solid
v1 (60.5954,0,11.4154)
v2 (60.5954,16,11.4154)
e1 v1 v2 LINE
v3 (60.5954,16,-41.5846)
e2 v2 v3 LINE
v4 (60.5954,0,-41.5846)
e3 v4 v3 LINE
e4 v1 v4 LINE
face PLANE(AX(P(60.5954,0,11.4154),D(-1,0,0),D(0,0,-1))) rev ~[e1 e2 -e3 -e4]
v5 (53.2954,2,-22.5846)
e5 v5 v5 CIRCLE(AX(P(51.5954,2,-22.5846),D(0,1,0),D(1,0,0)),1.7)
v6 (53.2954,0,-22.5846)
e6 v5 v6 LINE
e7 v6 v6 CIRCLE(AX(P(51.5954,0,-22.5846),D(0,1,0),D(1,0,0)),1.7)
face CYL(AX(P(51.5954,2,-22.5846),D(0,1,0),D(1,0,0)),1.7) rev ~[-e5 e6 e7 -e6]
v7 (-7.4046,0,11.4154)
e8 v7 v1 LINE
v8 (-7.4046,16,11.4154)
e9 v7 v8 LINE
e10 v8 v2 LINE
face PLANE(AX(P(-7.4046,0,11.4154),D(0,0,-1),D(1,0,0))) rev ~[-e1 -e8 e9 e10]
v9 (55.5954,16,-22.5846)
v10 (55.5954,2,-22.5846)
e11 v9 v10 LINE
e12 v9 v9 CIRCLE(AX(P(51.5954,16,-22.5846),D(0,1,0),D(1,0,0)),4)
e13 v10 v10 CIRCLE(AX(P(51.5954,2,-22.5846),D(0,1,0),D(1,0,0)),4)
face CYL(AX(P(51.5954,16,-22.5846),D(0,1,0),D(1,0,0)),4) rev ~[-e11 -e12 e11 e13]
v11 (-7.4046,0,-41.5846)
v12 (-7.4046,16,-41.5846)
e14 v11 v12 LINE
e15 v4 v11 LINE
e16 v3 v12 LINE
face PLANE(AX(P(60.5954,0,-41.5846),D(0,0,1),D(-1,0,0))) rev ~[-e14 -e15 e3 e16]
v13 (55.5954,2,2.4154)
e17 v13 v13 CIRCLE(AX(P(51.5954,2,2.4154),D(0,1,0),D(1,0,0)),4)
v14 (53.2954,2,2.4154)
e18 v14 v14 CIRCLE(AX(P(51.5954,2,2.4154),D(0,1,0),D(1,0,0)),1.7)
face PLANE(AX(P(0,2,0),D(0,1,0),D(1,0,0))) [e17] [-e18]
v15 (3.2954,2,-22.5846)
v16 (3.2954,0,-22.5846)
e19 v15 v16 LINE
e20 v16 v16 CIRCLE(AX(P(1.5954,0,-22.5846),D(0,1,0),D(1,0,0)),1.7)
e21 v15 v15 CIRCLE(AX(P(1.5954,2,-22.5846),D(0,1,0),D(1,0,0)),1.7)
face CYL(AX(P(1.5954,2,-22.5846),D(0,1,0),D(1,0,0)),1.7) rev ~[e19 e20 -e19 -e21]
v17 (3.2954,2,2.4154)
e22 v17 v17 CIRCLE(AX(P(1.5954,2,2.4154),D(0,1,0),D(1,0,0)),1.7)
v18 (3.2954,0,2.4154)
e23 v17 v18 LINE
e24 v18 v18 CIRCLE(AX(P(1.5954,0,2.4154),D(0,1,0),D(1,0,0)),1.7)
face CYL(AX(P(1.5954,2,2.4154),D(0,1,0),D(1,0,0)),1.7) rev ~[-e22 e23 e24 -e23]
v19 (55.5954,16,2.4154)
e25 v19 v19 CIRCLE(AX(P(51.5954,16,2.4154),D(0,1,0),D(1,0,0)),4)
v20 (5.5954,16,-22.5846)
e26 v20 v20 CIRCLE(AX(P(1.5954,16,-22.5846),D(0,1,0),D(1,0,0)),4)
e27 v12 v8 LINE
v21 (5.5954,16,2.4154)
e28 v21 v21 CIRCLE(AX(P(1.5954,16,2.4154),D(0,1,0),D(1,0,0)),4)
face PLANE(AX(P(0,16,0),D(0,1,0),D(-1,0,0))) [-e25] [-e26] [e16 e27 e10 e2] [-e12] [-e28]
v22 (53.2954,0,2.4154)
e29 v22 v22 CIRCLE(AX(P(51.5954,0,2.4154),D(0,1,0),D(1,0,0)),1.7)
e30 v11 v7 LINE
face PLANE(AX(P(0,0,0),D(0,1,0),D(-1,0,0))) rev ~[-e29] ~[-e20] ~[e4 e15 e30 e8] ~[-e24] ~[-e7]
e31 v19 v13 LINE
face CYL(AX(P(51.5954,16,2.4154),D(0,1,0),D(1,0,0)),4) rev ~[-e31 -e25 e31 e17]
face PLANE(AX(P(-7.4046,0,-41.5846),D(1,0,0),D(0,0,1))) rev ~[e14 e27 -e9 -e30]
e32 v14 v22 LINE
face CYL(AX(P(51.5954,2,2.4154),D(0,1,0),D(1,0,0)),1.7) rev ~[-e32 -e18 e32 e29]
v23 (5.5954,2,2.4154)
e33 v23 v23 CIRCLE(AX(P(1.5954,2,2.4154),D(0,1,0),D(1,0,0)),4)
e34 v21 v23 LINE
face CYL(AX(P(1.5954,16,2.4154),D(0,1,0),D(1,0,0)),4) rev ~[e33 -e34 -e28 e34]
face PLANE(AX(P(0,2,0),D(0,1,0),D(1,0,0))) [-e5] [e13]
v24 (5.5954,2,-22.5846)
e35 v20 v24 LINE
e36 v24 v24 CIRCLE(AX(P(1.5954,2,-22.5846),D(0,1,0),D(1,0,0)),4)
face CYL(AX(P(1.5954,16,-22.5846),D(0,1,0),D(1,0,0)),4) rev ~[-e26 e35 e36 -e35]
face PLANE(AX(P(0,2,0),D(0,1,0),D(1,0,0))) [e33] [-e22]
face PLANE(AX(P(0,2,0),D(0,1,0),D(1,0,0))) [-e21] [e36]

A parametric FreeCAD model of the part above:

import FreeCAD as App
import Part
import Sketcher


def add_polygon(sketch, points):
    """Adds a closed chain of lines whose ends are joined by coincident constraints."""
    first, n = sketch.GeometryCount, len(points)
    for a, b in zip(points, points[1:] + points[:1]):
        sketch.addGeometry(Part.LineSegment(App.Vector(*a, 0), App.Vector(*b, 0)), False)
    for i in range(n):
        sketch.addConstraint(Sketcher.Constraint("Coincident", first + i, 2, first + (i + 1) % n, 1))

doc = App.newDocument("Part")
body = doc.addObject("PartDesign::Body", "Body")

sketch1 = body.newObject("Sketcher::SketchObject", "Sketch")
sketch1.AttachmentSupport = (doc.getObject("XZ_Plane"), [""])
sketch1.MapMode = "FlatFace"
add_polygon(sketch1, [(-7, -42), (-7, 11), (61, 11), (61, -42)])
sketch1.addConstraint([
    Sketcher.Constraint("Vertical", 0),
    Sketcher.Constraint("Horizontal", 1),
    Sketcher.Constraint("Vertical", 2),
    Sketcher.Constraint("Horizontal", 3),
    Sketcher.Constraint("DistanceX", 1, 1, 1, 2, 68.0),
    Sketcher.Constraint("DistanceY", 0, 1, 0, 2, 53.0),
    Sketcher.Constraint("DistanceX", 0, 2, -1, 1, 7.4046),
    Sketcher.Constraint("DistanceY", -1, 1, 0, 2, 11.4154),
])
pad1 = body.newObject("PartDesign::Pad", "Pad")
pad1.Profile = sketch1
pad1.Length = 16
pad1.Reversed = True

sketch2 = body.newObject("Sketcher::SketchObject", "Sketch001")
sketch2.AttachmentSupport = (doc.getObject("XZ_Plane"), [""])
sketch2.MapMode = "FlatFace"
sketch2.AttachmentOffset = App.Placement(App.Vector(0, 0, -16), App.Rotation())
sketch2.addGeometry([
    Part.Circle(App.Vector(1.6, 2.4, 0), App.Vector(0, 0, 1), 4),
    Part.Circle(App.Vector(1.6, -22.6, 0), App.Vector(0, 0, 1), 4),
    Part.Circle(App.Vector(51.6, -22.6, 0), App.Vector(0, 0, 1), 4),
    Part.Circle(App.Vector(51.6, 2.4, 0), App.Vector(0, 0, 1), 4),
], False)
sketch2.addConstraint([
    Sketcher.Constraint("Equal", 0, 1),
    Sketcher.Constraint("Equal", 1, 2),
    Sketcher.Constraint("Equal", 2, 3),
    Sketcher.Constraint("Horizontal", 1, 3, 2, 3),
    Sketcher.Constraint("Horizontal", 0, 3, 3, 3),
    Sketcher.Constraint("Vertical", 0, 3, 1, 3),
    Sketcher.Constraint("Vertical", 2, 3, 3, 3),
    Sketcher.Constraint("Diameter", 0, 8.0),
    Sketcher.Constraint("DistanceY", 1, 3, 0, 3, 25.0),
    Sketcher.Constraint("DistanceX", 1, 3, 2, 3, 50.0),
    Sketcher.Constraint("DistanceX", -1, 1, 0, 3, 1.5954),
    Sketcher.Constraint("DistanceY", -1, 1, 0, 3, 2.4154),
])
pocket1 = body.newObject("PartDesign::Pocket", "Pocket")
pocket1.Profile = sketch2
pocket1.Length = 14
pocket1.Reversed = True

sketch3 = body.newObject("Sketcher::SketchObject", "Sketch002")
sketch3.AttachmentSupport = (doc.getObject("XZ_Plane"), [""])
sketch3.MapMode = "FlatFace"
sketch3.AttachmentOffset = App.Placement(App.Vector(0, 0, -2), App.Rotation())
sketch3.addGeometry([
    Part.Circle(App.Vector(1.6, 2.4, 0), App.Vector(0, 0, 1), 1.7),
    Part.Circle(App.Vector(1.6, -22.6, 0), App.Vector(0, 0, 1), 1.7),
    Part.Circle(App.Vector(51.6, -22.6, 0), App.Vector(0, 0, 1), 1.7),
    Part.Circle(App.Vector(51.6, 2.4, 0), App.Vector(0, 0, 1), 1.7),
], False)
sketch3.addConstraint([
    Sketcher.Constraint("Equal", 0, 1),
    Sketcher.Constraint("Equal", 1, 2),
    Sketcher.Constraint("Equal", 2, 3),
    Sketcher.Constraint("Horizontal", 1, 3, 2, 3),
    Sketcher.Constraint("Horizontal", 0, 3, 3, 3),
    Sketcher.Constraint("Vertical", 0, 3, 1, 3),
    Sketcher.Constraint("Vertical", 2, 3, 3, 3),
    Sketcher.Constraint("Diameter", 0, 3.4),
    Sketcher.Constraint("DistanceY", 1, 3, 0, 3, 25.0),
    Sketcher.Constraint("DistanceX", 1, 3, 2, 3, 50.0),
    Sketcher.Constraint("DistanceX", -1, 1, 0, 3, 1.5954),
    Sketcher.Constraint("DistanceY", -1, 1, 0, 3, 2.4154),
])
pocket2 = body.newObject("PartDesign::Pocket", "Pocket001")
pocket2.Profile = sketch3
pocket2.Type = "ThroughAll"
pocket2.Reversed = True

doc.recompute()
